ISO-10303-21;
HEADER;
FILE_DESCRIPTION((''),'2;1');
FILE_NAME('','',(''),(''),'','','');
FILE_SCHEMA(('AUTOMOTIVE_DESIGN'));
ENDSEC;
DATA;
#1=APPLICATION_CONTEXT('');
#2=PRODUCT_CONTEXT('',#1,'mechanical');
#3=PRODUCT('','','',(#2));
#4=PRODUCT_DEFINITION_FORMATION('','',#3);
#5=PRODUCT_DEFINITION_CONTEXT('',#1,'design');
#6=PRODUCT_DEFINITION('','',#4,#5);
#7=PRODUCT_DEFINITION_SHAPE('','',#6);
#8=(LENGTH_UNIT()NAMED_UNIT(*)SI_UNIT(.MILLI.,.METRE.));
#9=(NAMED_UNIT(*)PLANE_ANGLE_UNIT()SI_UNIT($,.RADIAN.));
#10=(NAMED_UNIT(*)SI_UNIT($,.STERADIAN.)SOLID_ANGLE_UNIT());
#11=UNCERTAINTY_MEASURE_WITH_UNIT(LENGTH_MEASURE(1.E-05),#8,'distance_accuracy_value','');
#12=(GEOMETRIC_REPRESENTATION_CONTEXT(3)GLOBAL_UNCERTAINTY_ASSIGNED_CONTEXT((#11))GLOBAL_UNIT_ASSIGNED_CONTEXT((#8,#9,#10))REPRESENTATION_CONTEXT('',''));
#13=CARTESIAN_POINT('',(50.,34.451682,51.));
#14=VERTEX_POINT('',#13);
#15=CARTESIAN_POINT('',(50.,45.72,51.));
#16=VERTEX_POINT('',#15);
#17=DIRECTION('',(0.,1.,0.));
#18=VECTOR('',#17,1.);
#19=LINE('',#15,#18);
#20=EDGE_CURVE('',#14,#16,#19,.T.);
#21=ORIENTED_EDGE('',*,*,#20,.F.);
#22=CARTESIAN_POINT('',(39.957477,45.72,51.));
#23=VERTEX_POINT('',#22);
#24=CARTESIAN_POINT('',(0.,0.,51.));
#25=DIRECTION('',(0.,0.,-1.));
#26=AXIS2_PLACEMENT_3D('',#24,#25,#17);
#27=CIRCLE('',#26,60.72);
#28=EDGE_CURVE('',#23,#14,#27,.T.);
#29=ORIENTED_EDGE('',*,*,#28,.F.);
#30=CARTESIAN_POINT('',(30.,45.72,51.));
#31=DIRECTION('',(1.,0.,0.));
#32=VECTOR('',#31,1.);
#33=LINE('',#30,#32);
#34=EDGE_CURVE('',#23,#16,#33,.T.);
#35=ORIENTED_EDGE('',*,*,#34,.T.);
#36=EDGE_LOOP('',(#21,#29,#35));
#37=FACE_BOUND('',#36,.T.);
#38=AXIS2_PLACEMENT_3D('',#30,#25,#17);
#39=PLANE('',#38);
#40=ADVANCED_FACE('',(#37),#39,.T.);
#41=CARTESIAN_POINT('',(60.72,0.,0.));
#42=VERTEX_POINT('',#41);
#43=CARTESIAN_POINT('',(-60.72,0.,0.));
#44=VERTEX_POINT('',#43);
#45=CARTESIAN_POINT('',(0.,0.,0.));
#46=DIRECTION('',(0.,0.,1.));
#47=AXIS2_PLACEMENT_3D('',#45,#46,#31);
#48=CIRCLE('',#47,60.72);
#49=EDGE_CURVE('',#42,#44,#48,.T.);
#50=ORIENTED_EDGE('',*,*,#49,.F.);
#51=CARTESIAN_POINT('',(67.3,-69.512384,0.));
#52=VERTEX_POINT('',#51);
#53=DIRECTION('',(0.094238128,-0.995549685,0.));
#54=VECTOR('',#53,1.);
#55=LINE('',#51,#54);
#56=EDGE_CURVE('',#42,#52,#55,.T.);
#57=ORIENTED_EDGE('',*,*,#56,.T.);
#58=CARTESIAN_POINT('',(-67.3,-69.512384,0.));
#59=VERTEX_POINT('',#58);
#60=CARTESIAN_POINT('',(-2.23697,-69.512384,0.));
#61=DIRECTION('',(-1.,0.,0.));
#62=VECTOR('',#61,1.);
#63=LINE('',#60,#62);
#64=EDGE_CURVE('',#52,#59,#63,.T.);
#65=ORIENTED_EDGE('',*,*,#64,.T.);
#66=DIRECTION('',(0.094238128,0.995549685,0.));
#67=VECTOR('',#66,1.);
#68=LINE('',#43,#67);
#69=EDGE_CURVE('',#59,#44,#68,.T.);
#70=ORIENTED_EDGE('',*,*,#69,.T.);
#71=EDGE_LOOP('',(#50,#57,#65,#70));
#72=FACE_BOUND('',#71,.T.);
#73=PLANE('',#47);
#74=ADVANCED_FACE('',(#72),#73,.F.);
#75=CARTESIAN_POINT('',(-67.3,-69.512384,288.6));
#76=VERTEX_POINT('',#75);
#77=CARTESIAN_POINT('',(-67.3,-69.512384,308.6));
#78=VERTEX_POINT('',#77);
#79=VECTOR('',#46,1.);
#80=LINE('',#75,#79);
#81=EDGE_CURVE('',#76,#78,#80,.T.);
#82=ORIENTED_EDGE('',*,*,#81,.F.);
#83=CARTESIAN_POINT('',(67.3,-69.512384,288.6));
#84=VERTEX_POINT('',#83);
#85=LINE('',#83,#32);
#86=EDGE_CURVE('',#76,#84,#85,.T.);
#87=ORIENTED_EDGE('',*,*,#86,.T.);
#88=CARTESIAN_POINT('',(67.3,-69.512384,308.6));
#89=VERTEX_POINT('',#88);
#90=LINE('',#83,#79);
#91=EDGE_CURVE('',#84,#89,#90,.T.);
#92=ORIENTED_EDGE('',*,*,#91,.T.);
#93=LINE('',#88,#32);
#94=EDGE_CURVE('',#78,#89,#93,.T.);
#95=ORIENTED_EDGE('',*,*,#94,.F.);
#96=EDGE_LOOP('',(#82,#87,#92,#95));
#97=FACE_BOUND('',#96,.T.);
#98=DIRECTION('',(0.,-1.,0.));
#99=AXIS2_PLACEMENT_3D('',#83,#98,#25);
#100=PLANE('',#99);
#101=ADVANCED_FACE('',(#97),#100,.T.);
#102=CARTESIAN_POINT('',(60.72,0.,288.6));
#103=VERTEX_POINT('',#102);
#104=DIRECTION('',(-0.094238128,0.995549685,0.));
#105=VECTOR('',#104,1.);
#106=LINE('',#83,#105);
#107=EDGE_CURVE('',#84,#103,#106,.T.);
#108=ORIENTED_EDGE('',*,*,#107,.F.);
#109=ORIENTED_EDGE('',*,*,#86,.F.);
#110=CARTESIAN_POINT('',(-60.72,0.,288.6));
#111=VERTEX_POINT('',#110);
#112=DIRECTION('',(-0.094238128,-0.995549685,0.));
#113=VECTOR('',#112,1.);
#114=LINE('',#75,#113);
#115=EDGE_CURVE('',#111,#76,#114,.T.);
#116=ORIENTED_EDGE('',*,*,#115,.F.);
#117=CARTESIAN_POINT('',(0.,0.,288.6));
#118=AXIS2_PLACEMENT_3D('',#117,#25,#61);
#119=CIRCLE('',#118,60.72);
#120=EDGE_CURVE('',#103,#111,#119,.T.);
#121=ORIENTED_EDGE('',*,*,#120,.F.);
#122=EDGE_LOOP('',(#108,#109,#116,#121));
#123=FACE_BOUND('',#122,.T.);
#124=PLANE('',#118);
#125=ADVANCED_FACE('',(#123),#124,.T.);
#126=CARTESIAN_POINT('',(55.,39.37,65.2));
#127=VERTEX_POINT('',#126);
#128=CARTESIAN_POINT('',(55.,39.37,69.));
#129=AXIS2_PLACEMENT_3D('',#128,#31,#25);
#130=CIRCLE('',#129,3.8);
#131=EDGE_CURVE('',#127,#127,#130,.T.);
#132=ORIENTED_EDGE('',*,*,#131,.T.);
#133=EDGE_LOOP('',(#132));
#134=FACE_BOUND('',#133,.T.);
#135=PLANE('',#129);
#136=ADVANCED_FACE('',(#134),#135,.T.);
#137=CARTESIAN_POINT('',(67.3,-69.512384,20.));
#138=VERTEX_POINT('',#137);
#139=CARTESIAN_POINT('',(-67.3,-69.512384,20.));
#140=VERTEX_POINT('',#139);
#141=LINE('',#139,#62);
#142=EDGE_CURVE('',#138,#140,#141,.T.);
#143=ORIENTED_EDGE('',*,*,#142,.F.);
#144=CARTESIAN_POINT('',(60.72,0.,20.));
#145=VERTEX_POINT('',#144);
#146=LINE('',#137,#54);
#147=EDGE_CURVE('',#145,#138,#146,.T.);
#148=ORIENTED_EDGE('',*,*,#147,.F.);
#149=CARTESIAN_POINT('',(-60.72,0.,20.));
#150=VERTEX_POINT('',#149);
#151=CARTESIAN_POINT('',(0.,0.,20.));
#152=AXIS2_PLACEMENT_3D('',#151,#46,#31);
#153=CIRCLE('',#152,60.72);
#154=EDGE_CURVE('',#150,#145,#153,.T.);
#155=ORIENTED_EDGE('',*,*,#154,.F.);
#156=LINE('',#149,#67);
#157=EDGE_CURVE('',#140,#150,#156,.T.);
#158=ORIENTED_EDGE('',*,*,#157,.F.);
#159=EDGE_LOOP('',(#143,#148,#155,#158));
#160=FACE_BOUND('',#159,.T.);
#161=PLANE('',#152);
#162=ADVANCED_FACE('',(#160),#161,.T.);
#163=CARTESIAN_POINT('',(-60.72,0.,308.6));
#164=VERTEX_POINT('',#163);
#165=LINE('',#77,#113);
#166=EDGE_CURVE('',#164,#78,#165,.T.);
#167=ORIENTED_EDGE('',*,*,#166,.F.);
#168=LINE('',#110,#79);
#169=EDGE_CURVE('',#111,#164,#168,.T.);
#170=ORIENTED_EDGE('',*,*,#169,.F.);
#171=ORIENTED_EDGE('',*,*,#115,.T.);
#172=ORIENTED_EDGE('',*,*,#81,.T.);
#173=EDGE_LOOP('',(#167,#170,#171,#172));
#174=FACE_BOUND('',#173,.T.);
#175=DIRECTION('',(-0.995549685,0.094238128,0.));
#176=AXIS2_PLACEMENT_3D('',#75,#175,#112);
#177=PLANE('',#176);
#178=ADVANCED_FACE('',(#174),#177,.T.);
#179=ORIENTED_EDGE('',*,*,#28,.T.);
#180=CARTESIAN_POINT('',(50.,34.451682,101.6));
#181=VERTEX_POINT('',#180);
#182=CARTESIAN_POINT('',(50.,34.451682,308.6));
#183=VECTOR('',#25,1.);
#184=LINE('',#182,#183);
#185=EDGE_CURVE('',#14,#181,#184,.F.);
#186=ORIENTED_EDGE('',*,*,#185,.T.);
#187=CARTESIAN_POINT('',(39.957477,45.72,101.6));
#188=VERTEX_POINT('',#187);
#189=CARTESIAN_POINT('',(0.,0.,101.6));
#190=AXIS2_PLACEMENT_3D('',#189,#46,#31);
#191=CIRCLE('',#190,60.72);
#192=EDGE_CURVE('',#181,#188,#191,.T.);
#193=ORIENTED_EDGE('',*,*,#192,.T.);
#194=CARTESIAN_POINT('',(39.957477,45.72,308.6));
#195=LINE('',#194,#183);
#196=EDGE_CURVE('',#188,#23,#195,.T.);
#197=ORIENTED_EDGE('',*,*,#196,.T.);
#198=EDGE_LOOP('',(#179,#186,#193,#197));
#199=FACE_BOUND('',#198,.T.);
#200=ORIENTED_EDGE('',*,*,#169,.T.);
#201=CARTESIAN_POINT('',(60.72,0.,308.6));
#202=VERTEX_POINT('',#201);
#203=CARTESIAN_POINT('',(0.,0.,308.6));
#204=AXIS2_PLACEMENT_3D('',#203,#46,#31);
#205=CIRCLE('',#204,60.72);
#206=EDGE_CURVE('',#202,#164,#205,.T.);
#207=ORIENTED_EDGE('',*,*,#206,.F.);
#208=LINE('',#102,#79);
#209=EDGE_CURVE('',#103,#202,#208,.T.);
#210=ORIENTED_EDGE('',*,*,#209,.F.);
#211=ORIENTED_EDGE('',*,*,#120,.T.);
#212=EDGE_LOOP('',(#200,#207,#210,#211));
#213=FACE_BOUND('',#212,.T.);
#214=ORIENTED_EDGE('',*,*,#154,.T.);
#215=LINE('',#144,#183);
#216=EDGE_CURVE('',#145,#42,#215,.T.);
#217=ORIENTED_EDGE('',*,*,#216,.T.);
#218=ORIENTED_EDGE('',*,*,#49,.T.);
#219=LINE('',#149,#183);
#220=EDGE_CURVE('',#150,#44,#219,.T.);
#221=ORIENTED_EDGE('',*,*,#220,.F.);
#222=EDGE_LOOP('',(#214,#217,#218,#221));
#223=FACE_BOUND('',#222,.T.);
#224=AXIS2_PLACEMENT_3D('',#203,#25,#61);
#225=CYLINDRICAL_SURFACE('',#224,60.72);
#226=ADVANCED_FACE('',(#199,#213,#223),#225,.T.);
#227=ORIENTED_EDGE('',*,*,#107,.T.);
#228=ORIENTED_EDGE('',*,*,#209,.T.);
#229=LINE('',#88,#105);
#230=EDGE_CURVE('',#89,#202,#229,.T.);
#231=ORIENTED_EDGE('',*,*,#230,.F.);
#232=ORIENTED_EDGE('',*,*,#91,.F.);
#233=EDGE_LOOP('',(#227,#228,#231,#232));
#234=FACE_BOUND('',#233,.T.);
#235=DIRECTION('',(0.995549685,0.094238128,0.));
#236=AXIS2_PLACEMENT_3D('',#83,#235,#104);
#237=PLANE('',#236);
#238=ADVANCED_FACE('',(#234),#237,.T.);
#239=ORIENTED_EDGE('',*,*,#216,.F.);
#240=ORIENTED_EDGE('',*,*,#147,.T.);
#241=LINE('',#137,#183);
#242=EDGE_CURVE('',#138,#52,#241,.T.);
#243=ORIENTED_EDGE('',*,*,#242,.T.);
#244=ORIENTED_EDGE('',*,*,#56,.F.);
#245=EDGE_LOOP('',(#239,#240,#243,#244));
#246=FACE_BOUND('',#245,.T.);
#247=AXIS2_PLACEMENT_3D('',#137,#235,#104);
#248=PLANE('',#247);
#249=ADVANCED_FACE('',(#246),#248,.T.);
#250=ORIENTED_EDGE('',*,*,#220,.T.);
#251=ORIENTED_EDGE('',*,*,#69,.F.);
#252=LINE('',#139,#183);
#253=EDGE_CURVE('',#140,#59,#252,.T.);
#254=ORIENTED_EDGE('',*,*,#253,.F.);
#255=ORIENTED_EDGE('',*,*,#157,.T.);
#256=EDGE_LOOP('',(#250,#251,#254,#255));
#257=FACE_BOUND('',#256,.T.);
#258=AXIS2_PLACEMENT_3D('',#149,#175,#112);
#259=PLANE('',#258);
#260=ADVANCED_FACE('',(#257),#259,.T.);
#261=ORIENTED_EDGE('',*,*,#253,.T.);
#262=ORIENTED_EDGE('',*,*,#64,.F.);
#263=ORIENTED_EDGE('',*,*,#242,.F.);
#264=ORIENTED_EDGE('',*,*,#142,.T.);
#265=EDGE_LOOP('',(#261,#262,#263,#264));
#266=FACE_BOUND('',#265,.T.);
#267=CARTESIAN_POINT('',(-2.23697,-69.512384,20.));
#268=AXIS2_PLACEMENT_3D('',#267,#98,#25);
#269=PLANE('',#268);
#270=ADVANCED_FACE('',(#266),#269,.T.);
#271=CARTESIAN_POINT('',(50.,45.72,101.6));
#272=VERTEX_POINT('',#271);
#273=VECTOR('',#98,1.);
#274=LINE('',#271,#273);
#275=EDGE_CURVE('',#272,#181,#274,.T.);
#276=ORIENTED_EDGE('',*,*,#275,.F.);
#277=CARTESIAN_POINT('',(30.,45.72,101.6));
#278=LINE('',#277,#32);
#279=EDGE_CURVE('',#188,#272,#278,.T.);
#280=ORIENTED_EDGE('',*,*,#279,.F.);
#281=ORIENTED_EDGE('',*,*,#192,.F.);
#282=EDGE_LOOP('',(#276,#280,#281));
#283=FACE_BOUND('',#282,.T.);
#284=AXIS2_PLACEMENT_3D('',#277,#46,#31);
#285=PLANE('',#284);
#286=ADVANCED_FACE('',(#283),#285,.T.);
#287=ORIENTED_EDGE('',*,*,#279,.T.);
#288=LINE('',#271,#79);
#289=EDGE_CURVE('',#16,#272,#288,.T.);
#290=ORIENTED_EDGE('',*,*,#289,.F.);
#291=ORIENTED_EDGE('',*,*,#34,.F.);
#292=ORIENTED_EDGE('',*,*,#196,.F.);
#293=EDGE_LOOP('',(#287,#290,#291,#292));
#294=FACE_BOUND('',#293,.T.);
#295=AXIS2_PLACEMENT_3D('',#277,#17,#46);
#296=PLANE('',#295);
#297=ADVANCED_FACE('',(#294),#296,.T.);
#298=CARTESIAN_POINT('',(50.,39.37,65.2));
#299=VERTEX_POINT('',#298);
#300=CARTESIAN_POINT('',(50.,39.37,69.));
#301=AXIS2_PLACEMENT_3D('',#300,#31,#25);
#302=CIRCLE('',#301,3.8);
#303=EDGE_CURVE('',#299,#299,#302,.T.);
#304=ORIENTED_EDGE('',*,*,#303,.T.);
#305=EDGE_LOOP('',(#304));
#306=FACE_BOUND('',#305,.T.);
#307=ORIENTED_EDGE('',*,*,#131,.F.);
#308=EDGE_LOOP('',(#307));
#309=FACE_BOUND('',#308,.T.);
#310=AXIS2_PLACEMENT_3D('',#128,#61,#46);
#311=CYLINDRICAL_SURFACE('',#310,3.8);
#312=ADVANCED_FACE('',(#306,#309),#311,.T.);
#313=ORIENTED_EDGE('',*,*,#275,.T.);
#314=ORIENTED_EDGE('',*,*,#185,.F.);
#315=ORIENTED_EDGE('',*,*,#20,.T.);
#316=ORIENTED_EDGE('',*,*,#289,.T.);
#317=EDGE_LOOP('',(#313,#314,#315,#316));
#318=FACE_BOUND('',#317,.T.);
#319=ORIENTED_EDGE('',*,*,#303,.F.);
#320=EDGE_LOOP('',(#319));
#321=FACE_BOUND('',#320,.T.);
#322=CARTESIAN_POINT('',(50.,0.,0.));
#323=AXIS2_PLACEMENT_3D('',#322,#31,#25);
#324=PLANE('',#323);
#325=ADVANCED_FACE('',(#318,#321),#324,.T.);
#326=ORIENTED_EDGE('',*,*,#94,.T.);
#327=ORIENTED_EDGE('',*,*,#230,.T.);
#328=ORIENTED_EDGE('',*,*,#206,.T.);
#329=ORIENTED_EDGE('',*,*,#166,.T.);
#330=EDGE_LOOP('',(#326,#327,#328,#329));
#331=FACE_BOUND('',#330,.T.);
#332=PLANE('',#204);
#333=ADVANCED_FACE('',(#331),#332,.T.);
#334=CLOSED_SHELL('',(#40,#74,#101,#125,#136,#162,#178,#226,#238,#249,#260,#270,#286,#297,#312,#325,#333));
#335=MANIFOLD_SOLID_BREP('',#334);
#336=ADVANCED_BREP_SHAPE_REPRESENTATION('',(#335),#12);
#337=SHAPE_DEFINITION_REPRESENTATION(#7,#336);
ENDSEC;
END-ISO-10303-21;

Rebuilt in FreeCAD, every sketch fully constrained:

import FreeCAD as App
import Part
import Sketcher
from FreeCAD import Vector


def add_polygon(sketch, points):
    """Adds a closed chain of lines whose ends are joined by coincident constraints."""
    first, n = sketch.GeometryCount, len(points)
    for a, b in zip(points, points[1:] + points[:1]):
        sketch.addGeometry(Part.LineSegment(App.Vector(*a, 0), App.Vector(*b, 0)), False)
    for i in range(n):
        sketch.addConstraint(Sketcher.Constraint("Coincident", first + i, 2, first + (i + 1) % n, 1))

doc = App.newDocument("Part")
params = doc.addObject("Spreadsheet::Sheet", "Params")
for row, (alias, value) in enumerate([
    ("sketch1_diameter", "121.44 mm"),
    ("pad1_length", "308.6 mm"),
    ("sketch2_width", "134.6 mm"),
    ("sketch2_width2", "121.44 mm"),
    ("pad2_length", "20 mm"),
    ("sketch3_width", "134.6 mm"),
    ("sketch3_width2", "121.44 mm"),
    ("pad3_length", "20 mm"),
    ("sketch4_width", "12.7 mm"),
    ("sketch4_height", "50.6 mm"),
    ("pad4_length", "20 mm"),
    ("sketch5_diameter", "7.6 mm"),
    ("pad5_length", "5 mm"),
], start=1):
    params.set(f"A{row}", alias)
    params.set(f"B{row}", "=" + value)
    params.setAlias(f"B{row}", alias)

body = doc.addObject("PartDesign::Body", "Body")

sketch1 = body.newObject("Sketcher::SketchObject", "Sketch")
sketch1.AttachmentSupport = (doc.getObject("XY_Plane"), [""])
sketch1.MapMode = "FlatFace"
sketch1.addGeometry(Part.Circle(Vector(0, 0, 0), Vector(0, 0, 1), 60.72), False)
sketch1.addConstraint([
    Sketcher.Constraint("Coincident", 0, 3, -1, 1),
    Sketcher.Constraint("Diameter", 0, 121.44),
])
sketch1.setExpression("Constraints[1]", "Params.sketch1_diameter")
pad1 = body.newObject("PartDesign::Pad", "Pad")
pad1.Profile = sketch1
pad1.setExpression("Length", "Params.pad1_length")

sketch2 = body.newObject("Sketcher::SketchObject", "Sketch001")
sketch2.AttachmentSupport = (doc.getObject("XY_Plane"), [""])
sketch2.MapMode = "FlatFace"
sketch2.AttachmentOffset = App.Placement(Vector(0, 0, 308.6), App.Rotation())
add_polygon(sketch2, [(-67.3, -69.512384), (67.3, -69.512384), (60.72, 0), (-60.72, 0)])
sketch2.addConstraint([
    Sketcher.Constraint("Horizontal", 0),
    Sketcher.Constraint("Horizontal", 2),
    Sketcher.Constraint("Symmetric", 1, 2, 2, 2, -1, 1),
    Sketcher.Constraint("Equal", 1, 3),
    Sketcher.Constraint("DistanceX", 0, 1, 0, 2, 134.6),
    Sketcher.Constraint("DistanceX", 2, 2, 2, 1, 121.44),
    Sketcher.Constraint("Distance", 1, 69.823119),
])
sketch2.setExpression("Constraints[8]", "Params.sketch2_width")
sketch2.setExpression("Constraints[9]", "Params.sketch2_width2")
pad2 = body.newObject("PartDesign::Pad", "Pad001")
pad2.Profile = sketch2
pad2.setExpression("Length", "Params.pad2_length")
pad2.Reversed = True

sketch3 = body.newObject("Sketcher::SketchObject", "Sketch002")
sketch3.AttachmentSupport = (doc.getObject("XY_Plane"), [""])
sketch3.MapMode = "FlatFace"
add_polygon(sketch3, [(67.3, -69.512384), (-67.3, -69.512384), (-60.72, 0), (60.72, 0)])
sketch3.addConstraint([
    Sketcher.Constraint("Horizontal", 0),
    Sketcher.Constraint("Horizontal", 2),
    Sketcher.Constraint("Symmetric", 1, 2, 2, 2, -1, 1),
    Sketcher.Constraint("Equal", 1, 3),
    Sketcher.Constraint("DistanceX", 0, 2, 0, 1, 134.6),
    Sketcher.Constraint("DistanceX", 2, 1, 2, 2, 121.44),
    Sketcher.Constraint("Distance", 1, 69.823119),
])
sketch3.setExpression("Constraints[8]", "Params.sketch3_width")
sketch3.setExpression("Constraints[9]", "Params.sketch3_width2")
pad3 = body.newObject("PartDesign::Pad", "Pad002")
pad3.Profile = sketch3
pad3.setExpression("Length", "Params.pad3_length")

sketch4 = body.newObject("Sketcher::SketchObject", "Sketch003")
sketch4.AttachmentSupport = (doc.getObject("YZ_Plane"), [""])
sketch4.MapMode = "FlatFace"
sketch4.AttachmentOffset = App.Placement(Vector(0, 0, 50), App.Rotation())
add_polygon(sketch4, [(45.72, 101.6), (33.02, 101.6), (33.02, 51), (45.72, 51)])
sketch4.addConstraint([
    Sketcher.Constraint("Horizontal", 0),
    Sketcher.Constraint("Vertical", 1),
    Sketcher.Constraint("Horizontal", 2),
    Sketcher.Constraint("Vertical", 3),
    Sketcher.Constraint("DistanceX", 0, 2, 0, 1, 12.7),
    Sketcher.Constraint("DistanceY", 1, 2, 1, 1, 50.6),
    Sketcher.Constraint("DistanceY", -1, 1, 1, 2, 51.0),
    Sketcher.Constraint("DistanceX", -1, 1, 0, 2, 33.02),
])
sketch4.setExpression("Constraints[8]", "Params.sketch4_width")
sketch4.setExpression("Constraints[9]", "Params.sketch4_height")
pad4 = body.newObject("PartDesign::Pad", "Pad003")
pad4.Profile = sketch4
pad4.setExpression("Length", "Params.pad4_length")
pad4.Reversed = True

sketch5 = body.newObject("Sketcher::SketchObject", "Sketch004")
sketch5.AttachmentSupport = (doc.getObject("YZ_Plane"), [""])
sketch5.MapMode = "FlatFace"
sketch5.AttachmentOffset = App.Placement(Vector(0, 0, 50), App.Rotation())
sketch5.addGeometry(Part.Circle(Vector(39.37, 69, 0), Vector(0, 0, 1), 3.8), False)
sketch5.addConstraint([
    Sketcher.Constraint("Diameter", 0, 7.6),
    Sketcher.Constraint("DistanceY", -1, 1, 0, 3, 69.0),
    Sketcher.Constraint("DistanceX", -1, 1, 0, 3, 39.37),
])
sketch5.setExpression("Constraints[0]", "Params.sketch5_diameter")
pad5 = body.newObject("PartDesign::Pad", "Pad004")
pad5.Profile = sketch5
pad5.setExpression("Length", "Params.pad5_length")

doc.recompute()
